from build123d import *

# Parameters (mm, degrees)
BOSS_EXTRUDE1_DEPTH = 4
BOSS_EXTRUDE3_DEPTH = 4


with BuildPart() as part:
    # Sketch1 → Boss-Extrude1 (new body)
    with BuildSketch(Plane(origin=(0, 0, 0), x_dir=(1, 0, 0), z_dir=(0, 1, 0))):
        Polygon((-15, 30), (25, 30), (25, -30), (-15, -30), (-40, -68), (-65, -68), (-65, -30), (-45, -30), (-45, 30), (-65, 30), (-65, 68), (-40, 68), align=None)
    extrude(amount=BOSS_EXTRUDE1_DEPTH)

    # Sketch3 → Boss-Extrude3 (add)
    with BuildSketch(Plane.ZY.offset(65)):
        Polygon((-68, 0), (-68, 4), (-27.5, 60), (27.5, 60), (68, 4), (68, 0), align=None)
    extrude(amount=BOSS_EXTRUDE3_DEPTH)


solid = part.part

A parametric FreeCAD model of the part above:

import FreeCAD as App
import Part
import Sketcher
from FreeCAD import Vector
Q = App.Units.Quantity


def add_polygon(sketch, points):
    """Adds a closed chain of lines whose ends are joined by coincident constraints."""
    first, n = sketch.GeometryCount, len(points)
    for a, b in zip(points, points[1:] + points[:1]):
        sketch.addGeometry(Part.LineSegment(App.Vector(*a, 0), App.Vector(*b, 0)), False)
    for i in range(n):
        sketch.addConstraint(Sketcher.Constraint("Coincident", first + i, 2, first + (i + 1) % n, 1))

doc = App.newDocument("Part")
body = doc.addObject("PartDesign::Body", "Body")

# Sketch on XZ plane
sketch1 = body.newObject("Sketcher::SketchObject", "Sketch")
sketch1.AttachmentSupport = (doc.getObject("XZ_Plane"), [""])
sketch1.MapMode = "FlatFace"
add_polygon(sketch1, [(25, -30), (-15, -30), (-40, -68), (-65, -68), (-65, -30), (-45, -30), (-45, 30), (-65, 30), (-65, 68), (-40, 68), (-15, 30), (25, 30)])  # lines 0-11
sketch1.addConstraint(Sketcher.Constraint("Horizontal", 0))
sketch1.addConstraint(Sketcher.Constraint("Horizontal", 2))
sketch1.addConstraint(Sketcher.Constraint("Vertical", 3))
sketch1.addConstraint(Sketcher.Constraint("Horizontal", 4))
sketch1.addConstraint(Sketcher.Constraint("Vertical", 5))
sketch1.addConstraint(Sketcher.Constraint("Horizontal", 6))
sketch1.addConstraint(Sketcher.Constraint("Vertical", 7))
sketch1.addConstraint(Sketcher.Constraint("Horizontal", 8))
sketch1.addConstraint(Sketcher.Constraint("Horizontal", 10))
sketch1.addConstraint(Sketcher.Constraint("Vertical", 11))
sketch1.addConstraint(Sketcher.Constraint("Symmetric", 3, 2, 6, 2, -1))
sketch1.addConstraint(Sketcher.Constraint("Symmetric", 1, 2, 8, 2, -1))
sketch1.addConstraint(Sketcher.Constraint("Symmetric", 0, 2, 9, 2, -1))
sketch1.addConstraint(Sketcher.Constraint("Horizontal", 0, 2, 3, 2))
sketch1.addConstraint(Sketcher.Constraint("DistanceX", 0, 2, 0, 1, Q("40 mm")))
sketch1.addConstraint(Sketcher.Constraint("DistanceX", 2, 2, 2, 1, Q("25 mm")))
sketch1.addConstraint(Sketcher.Constraint("DistanceX", 4, 1, 4, 2, Q("20 mm")))
sketch1.addConstraint(Sketcher.Constraint("DistanceY", 3, 1, 3, 2, Q("38 mm")))
sketch1.addConstraint(Sketcher.Constraint("DistanceY", 5, 1, 5, 2, Q("60 mm")))
sketch1.addConstraint(Sketcher.Constraint("DistanceX", 0, 2, -1, 1, Q("15 mm")))
sketch1.addConstraint(Sketcher.Constraint("DistanceX", 1, 2, -1, 1, Q("40 mm")))
pad1 = body.newObject("PartDesign::Pad", "Pad")
pad1.Profile = sketch1
pad1.Length = 4
pad1.Reversed = True

# Sketch on YZ plane
sketch2 = body.newObject("Sketcher::SketchObject", "Sketch001")
sketch2.AttachmentSupport = (doc.getObject("YZ_Plane"), [""])
sketch2.MapMode = "FlatFace"
sketch2.AttachmentOffset = App.Placement(Vector(0, 0, -65), App.Rotation())
add_polygon(sketch2, [(4, -68), (0, -68), (0, 68), (4, 68), (60, 27.5), (60, -27.5)])  # lines 0-5
sketch2.addConstraint(Sketcher.Constraint("Horizontal", 0))
sketch2.addConstraint(Sketcher.Constraint("Vertical", 1))
sketch2.addConstraint(Sketcher.Constraint("Horizontal", 2))
sketch2.addConstraint(Sketcher.Constraint("Vertical", 4))
sketch2.addConstraint(Sketcher.Constraint("Symmetric", 0, 2, 1, 2, -1, 1))
sketch2.addConstraint(Sketcher.Constraint("Vertical", 2, 2, 5, 2))
sketch2.addConstraint(Sketcher.Constraint("Equal", 3, 5))
sketch2.addConstraint(Sketcher.Constraint("DistanceX", 0, 2, 0, 1, Q("4 mm")))
sketch2.addConstraint(Sketcher.Constraint("DistanceY", 1, 1, 1, 2, Q("136 mm")))
sketch2.addConstraint(Sketcher.Constraint("DistanceY", 4, 2, 4, 1, Q("55 mm")))
sketch2.addConstraint(Sketcher.Constraint("DistanceX", -1, 1, 3, 2, Q("60 mm")))
pad2 = body.newObject("PartDesign::Pad", "Pad001")
pad2.Profile = sketch2
pad2.Length = 4
pad2.Reversed = True

doc.recompute()
